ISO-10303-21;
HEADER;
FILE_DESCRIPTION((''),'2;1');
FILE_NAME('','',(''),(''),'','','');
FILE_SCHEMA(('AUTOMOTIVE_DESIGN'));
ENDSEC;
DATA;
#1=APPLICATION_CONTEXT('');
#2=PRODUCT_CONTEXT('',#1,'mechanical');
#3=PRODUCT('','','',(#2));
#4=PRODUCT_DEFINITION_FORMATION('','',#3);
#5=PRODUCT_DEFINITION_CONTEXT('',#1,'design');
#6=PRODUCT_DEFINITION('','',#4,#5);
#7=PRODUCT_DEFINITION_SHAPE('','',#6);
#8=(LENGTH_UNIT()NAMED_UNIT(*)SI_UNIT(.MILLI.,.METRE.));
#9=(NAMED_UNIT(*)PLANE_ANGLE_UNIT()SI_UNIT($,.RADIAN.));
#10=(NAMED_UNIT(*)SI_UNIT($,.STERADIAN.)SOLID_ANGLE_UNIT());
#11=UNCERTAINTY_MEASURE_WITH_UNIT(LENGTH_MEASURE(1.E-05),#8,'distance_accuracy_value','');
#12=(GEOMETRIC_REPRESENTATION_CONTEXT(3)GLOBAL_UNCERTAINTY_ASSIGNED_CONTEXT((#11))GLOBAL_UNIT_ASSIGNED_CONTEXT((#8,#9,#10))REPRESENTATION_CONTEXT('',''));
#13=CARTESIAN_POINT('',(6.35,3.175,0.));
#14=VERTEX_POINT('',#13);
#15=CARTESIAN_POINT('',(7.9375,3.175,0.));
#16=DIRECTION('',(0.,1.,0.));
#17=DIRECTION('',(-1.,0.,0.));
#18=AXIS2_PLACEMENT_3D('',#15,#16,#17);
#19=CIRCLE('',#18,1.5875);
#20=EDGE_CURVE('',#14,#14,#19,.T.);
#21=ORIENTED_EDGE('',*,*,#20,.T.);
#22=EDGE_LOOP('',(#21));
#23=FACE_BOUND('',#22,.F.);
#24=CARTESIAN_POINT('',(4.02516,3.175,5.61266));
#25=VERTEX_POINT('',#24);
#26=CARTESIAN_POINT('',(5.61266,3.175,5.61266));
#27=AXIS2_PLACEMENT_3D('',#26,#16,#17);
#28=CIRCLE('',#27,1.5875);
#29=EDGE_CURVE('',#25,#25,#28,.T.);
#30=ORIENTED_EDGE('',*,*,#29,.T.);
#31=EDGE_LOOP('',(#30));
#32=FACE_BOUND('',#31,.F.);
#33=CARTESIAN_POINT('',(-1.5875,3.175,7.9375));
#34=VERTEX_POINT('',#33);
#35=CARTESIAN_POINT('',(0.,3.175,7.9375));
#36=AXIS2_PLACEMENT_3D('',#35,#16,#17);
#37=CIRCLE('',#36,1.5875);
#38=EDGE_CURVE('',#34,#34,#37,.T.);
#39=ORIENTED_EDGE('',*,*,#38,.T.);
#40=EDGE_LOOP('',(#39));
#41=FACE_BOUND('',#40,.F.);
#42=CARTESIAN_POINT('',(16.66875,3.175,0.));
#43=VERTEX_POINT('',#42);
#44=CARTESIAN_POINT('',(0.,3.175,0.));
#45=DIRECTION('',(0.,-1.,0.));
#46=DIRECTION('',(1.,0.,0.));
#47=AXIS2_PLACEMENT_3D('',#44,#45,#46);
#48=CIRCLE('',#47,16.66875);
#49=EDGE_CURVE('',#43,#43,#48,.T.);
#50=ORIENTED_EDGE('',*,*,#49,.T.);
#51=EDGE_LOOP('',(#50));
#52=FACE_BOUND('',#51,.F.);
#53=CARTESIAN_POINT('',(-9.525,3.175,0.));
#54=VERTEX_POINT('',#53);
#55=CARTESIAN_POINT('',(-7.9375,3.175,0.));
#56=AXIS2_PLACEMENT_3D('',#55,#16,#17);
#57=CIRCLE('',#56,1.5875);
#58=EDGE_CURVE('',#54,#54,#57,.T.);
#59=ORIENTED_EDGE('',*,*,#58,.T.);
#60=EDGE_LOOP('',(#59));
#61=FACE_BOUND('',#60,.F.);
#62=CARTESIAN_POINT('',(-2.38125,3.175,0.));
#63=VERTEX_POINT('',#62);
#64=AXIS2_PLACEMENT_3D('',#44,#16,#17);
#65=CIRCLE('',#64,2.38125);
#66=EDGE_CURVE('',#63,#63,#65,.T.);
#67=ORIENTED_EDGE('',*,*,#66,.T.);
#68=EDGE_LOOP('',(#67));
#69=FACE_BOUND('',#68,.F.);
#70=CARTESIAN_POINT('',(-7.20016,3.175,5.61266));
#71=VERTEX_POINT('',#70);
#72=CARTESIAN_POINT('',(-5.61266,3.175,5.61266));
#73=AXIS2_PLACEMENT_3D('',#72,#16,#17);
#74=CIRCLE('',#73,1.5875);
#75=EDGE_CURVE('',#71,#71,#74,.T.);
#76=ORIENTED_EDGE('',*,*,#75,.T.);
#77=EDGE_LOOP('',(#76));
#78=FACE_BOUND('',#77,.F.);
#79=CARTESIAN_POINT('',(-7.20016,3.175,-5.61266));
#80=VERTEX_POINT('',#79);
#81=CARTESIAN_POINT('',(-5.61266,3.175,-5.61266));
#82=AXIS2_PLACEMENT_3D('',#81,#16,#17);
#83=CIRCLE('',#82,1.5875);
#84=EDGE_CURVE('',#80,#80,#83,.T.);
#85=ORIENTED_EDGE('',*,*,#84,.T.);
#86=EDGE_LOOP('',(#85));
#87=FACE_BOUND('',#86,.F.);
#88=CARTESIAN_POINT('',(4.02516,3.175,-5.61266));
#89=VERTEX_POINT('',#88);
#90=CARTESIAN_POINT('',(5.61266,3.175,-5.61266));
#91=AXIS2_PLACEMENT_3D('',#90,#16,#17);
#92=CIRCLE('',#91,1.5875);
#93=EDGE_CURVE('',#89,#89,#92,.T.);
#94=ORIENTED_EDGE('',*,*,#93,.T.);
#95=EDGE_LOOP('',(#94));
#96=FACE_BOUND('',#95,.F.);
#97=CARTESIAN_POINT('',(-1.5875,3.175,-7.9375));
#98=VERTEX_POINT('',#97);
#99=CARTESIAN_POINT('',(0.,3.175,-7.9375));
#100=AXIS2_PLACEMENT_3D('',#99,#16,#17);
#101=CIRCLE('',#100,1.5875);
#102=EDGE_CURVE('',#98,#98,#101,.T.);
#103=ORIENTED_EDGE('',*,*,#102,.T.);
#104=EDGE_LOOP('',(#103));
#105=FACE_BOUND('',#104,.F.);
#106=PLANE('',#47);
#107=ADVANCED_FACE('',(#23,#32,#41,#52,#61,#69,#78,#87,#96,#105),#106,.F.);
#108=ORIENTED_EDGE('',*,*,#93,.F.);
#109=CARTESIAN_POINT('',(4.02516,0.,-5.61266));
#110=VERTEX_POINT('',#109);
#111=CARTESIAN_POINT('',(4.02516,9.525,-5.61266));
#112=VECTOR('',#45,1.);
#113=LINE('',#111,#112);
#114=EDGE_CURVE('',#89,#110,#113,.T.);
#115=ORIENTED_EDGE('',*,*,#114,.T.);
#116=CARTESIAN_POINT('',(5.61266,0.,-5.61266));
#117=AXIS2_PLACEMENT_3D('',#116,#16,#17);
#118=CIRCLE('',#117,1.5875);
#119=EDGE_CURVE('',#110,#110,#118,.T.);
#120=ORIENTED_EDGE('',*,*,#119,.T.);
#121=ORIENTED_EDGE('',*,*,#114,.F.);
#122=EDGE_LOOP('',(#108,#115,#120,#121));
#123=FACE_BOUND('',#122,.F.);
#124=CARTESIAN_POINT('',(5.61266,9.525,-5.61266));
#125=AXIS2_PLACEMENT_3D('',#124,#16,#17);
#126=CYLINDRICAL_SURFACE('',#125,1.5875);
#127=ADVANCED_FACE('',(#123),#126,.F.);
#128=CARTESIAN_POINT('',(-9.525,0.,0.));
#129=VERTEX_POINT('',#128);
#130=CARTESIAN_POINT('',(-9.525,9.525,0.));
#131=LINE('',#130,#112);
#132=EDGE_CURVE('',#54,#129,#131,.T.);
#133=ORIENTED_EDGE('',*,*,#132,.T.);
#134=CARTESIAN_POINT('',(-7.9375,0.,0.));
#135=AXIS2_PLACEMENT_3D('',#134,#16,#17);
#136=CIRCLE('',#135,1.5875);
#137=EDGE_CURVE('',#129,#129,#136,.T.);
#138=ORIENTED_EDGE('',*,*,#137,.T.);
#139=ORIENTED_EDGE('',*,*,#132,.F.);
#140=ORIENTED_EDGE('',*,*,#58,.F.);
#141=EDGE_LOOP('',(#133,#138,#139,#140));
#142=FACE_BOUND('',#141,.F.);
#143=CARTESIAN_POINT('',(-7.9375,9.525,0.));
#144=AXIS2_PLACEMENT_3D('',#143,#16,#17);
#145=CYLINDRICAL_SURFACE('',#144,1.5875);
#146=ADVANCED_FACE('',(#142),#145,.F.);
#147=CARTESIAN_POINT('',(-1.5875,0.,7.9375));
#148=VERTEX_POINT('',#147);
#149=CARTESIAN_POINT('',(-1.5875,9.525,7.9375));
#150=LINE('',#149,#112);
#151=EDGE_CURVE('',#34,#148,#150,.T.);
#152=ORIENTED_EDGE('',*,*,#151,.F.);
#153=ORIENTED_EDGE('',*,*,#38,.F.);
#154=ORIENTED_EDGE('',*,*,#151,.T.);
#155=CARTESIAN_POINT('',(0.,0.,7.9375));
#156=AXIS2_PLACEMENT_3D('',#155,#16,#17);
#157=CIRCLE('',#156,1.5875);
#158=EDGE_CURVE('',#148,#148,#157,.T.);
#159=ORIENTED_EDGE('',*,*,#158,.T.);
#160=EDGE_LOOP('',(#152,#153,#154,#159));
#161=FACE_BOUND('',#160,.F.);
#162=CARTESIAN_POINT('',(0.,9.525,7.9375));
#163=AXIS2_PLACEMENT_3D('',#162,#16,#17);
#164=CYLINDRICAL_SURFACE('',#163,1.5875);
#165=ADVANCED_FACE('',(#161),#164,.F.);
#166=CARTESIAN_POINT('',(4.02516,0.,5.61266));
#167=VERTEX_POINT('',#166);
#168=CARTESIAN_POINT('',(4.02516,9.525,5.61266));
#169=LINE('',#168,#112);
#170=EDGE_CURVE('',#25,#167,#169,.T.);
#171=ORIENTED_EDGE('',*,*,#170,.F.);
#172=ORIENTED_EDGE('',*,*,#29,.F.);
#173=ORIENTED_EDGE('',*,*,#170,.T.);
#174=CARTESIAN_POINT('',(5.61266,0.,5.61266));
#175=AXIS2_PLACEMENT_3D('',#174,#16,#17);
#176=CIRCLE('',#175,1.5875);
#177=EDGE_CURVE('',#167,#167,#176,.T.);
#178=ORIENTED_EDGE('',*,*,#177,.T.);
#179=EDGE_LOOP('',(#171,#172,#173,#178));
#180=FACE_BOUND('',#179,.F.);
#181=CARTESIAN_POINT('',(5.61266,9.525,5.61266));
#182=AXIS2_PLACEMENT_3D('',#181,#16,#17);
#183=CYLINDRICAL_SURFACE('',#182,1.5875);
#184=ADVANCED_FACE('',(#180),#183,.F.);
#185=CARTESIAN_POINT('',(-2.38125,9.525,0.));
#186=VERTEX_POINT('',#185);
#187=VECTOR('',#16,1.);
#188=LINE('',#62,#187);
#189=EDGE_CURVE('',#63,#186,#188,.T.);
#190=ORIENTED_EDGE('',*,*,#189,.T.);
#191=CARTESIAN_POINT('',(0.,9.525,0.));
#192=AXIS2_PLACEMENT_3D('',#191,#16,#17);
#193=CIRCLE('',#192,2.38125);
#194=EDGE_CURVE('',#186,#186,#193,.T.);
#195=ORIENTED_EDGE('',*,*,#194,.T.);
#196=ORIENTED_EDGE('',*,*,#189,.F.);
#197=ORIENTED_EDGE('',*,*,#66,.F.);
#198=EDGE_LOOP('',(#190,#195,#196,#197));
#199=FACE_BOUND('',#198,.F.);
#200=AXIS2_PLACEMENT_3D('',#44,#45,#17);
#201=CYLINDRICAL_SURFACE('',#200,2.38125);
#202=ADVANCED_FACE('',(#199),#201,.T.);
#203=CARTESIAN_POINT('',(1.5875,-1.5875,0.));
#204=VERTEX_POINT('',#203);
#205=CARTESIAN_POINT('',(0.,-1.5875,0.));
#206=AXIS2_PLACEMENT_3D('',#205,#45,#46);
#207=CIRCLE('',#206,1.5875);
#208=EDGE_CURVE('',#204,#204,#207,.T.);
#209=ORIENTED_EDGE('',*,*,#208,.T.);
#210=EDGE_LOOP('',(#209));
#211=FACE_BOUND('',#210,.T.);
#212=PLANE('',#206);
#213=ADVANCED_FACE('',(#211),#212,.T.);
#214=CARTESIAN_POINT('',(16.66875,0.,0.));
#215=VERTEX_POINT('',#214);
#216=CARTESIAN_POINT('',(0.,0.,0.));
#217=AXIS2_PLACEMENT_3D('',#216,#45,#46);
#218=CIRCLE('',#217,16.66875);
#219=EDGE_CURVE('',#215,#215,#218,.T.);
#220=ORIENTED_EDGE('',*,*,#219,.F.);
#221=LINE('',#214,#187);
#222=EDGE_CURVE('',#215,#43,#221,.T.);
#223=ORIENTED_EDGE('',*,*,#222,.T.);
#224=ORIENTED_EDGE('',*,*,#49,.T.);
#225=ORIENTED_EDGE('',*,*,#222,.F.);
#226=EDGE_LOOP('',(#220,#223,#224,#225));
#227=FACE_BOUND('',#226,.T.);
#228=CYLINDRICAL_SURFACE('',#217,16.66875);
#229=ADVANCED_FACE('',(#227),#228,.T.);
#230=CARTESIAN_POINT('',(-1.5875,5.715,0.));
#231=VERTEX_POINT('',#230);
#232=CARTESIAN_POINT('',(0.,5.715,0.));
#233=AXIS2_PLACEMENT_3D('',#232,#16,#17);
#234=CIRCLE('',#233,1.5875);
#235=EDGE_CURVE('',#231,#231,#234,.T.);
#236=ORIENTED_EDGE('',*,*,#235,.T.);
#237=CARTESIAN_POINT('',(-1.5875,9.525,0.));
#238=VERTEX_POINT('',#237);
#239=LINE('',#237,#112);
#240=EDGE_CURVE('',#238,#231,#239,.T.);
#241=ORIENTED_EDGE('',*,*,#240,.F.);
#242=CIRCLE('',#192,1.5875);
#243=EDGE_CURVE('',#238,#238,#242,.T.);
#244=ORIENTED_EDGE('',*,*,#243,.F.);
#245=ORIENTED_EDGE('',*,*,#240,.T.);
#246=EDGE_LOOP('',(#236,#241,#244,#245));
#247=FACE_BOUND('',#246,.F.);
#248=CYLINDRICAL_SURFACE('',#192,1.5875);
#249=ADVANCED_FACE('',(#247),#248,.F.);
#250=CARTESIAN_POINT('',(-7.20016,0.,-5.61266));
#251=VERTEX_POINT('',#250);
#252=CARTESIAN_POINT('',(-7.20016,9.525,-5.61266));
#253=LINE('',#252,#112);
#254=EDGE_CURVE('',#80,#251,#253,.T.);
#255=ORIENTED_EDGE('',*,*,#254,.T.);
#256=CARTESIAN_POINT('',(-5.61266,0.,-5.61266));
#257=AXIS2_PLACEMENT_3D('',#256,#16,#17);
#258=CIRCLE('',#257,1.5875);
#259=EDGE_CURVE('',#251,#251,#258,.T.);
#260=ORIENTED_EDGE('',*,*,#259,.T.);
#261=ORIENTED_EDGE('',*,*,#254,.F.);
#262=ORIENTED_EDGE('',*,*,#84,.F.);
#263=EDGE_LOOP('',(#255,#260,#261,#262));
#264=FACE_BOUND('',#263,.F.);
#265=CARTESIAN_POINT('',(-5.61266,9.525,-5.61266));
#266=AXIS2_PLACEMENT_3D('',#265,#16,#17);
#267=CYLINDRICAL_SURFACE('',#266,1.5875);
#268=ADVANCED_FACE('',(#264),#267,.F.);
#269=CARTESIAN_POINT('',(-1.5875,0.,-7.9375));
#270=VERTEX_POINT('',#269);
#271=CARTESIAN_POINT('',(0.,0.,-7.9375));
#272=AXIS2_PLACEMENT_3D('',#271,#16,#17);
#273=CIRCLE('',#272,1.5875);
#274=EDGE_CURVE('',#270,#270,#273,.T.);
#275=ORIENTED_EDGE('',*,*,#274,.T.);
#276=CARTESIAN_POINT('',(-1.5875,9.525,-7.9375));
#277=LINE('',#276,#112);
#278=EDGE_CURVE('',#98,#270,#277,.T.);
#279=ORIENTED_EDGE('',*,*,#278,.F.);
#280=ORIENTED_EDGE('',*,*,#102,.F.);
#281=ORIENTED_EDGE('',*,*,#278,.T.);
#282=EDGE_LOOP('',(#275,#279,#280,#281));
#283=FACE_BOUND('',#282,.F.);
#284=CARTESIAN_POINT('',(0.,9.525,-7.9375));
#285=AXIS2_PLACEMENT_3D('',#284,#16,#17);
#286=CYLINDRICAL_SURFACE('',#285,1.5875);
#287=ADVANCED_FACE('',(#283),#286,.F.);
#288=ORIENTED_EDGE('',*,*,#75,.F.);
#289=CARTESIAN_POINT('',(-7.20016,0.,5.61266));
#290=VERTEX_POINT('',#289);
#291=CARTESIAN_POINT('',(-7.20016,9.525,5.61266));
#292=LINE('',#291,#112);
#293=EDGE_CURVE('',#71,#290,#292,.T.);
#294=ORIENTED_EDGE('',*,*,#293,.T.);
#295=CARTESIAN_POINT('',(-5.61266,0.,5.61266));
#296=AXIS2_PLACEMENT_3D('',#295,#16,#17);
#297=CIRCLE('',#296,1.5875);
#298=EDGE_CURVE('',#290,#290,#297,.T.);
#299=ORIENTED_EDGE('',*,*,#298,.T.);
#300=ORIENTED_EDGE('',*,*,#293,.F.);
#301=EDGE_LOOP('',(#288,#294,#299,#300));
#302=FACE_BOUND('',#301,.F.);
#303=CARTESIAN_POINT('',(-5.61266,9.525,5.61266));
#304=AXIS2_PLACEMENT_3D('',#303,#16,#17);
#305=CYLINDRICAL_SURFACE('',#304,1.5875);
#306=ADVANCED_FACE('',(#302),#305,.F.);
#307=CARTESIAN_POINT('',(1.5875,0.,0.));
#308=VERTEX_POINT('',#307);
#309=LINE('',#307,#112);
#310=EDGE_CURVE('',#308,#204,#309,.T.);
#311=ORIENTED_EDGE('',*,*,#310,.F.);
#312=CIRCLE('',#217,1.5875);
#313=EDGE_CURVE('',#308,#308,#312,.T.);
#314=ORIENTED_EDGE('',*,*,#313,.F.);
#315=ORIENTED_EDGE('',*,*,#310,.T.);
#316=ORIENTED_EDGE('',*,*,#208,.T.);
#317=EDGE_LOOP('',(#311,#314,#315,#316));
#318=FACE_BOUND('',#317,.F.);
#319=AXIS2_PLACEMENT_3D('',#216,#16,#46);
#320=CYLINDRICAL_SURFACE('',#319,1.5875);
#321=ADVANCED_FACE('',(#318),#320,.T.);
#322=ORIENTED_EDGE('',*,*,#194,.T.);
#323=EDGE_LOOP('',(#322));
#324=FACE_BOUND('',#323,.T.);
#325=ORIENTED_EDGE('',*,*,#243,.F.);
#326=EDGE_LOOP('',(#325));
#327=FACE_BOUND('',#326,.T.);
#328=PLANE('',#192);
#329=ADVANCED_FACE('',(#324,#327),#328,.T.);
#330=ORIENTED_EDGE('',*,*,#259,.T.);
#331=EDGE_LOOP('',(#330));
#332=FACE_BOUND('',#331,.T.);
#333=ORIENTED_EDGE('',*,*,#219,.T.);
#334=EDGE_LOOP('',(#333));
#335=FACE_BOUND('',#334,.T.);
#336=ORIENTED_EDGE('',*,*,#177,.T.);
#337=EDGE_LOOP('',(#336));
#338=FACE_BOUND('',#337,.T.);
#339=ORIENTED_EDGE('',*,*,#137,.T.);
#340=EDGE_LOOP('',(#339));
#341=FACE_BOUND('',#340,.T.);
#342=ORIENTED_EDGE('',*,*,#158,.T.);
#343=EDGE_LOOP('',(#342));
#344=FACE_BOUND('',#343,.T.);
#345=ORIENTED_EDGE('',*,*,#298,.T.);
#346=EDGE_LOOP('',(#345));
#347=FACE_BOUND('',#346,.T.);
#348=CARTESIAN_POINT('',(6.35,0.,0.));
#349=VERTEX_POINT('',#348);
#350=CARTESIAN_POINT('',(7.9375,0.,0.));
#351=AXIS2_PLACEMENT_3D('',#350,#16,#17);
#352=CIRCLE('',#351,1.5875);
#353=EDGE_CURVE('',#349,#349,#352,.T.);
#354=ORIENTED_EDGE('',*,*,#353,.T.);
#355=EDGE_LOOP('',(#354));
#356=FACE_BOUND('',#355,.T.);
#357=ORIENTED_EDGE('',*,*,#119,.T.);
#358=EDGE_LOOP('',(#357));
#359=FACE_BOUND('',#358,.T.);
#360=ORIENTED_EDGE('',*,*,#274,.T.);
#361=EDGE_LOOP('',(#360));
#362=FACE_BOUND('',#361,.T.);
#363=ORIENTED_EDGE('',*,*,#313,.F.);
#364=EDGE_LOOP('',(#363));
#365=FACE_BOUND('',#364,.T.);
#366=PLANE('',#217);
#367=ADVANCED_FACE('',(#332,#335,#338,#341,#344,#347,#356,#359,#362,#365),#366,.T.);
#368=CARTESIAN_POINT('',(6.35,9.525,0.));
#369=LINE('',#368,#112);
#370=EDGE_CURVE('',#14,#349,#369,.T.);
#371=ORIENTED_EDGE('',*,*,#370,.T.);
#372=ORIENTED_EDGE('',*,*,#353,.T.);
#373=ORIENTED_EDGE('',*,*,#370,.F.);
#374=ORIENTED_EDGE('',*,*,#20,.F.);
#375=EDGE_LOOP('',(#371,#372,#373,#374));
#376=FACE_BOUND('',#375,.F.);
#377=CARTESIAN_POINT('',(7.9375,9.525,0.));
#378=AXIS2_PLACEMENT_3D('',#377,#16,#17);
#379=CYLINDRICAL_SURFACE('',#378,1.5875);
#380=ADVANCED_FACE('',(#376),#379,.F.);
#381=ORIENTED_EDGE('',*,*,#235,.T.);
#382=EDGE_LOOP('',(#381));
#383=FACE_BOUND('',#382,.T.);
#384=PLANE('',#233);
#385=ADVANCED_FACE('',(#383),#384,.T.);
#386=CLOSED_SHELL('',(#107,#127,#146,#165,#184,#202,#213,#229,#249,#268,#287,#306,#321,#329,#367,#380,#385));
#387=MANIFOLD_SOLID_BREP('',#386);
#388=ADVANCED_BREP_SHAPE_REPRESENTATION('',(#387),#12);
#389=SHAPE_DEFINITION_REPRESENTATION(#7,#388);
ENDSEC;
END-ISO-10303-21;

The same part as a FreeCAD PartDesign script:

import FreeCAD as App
import Part
import Sketcher

V = App.Vector
Q = App.Units.Quantity

doc = App.newDocument("Part")
body = doc.addObject("PartDesign::Body", "Body")

# Sketch on XZ plane
sketch1 = body.newObject("Sketcher::SketchObject", "Sketch")
sketch1.AttachmentSupport = (doc.getObject("XZ_Plane"), [""])
sketch1.MapMode = "FlatFace"
sketch1.addGeometry(Part.Circle(V(0, 0, 0), V(0, 0, 1), 17), False)
sketch1.addConstraint(Sketcher.Constraint("Coincident", 0, 3, -1, 1))
sketch1.addConstraint(Sketcher.Constraint("Diameter", 0, Q("1.3125 in")))
pad1 = body.newObject("PartDesign::Pad", "Pad")
pad1.Profile = sketch1
pad1.Length = Q("0.125 in")
pad1.Reversed = True

# Sketch on XZ plane
sketch2 = body.newObject("Sketcher::SketchObject", "Sketch001")
sketch2.AttachmentSupport = (doc.getObject("XZ_Plane"), [""])
sketch2.MapMode = "FlatFace"
sketch2.AttachmentOffset = App.Placement(V(0, 0, -0.125 * 25.4), App.Rotation())
sketch2.addGeometry(Part.Circle(V(0, 0, 0), V(0, 0, 1), 2.4), False)
sketch2.addConstraint(Sketcher.Constraint("Coincident", 0, 3, -1, 1))
sketch2.addConstraint(Sketcher.Constraint("Diameter", 0, Q("0.1875 in")))
pad2 = body.newObject("PartDesign::Pad", "Pad001")
pad2.Profile = sketch2
pad2.Length = Q("0.25 in")
pad2.Reversed = True

# Sketch on XZ plane
sketch3 = body.newObject("Sketcher::SketchObject", "Sketch002")
sketch3.AttachmentSupport = (doc.getObject("XZ_Plane"), [""])
sketch3.MapMode = "FlatFace"
sketch3.AttachmentOffset = App.Placement(V(0, 0, -0.375 * 25.4), App.Rotation())
sketch3.addGeometry(Part.Circle(V(-7.9, 0, 0), V(0, 0, 1), 1.6), False)
sketch3.addGeometry(Part.Circle(V(-5.6, 5.6, 0), V(0, 0, 1), 1.6), False)
sketch3.addGeometry(Part.Circle(V(0, 7.9, 0), V(0, 0, 1), 1.6), False)
sketch3.addGeometry(Part.Circle(V(5.6, 5.6, 0), V(0, 0, 1), 1.6), False)
sketch3.addGeometry(Part.Circle(V(7.9, 0, 0), V(0, 0, 1), 1.6), False)
sketch3.addGeometry(Part.Circle(V(5.6, -5.6, 0), V(0, 0, 1), 1.6), False)
sketch3.addGeometry(Part.Circle(V(0, -7.9, 0), V(0, 0, 1), 1.6), False)
sketch3.addGeometry(Part.Circle(V(-5.6, -5.6, 0), V(0, 0, 1), 1.6), False)
sketch3.addConstraint(Sketcher.Constraint("Equal", 0, 1))
sketch3.addConstraint(Sketcher.Constraint("Equal", 1, 2))
sketch3.addConstraint(Sketcher.Constraint("Equal", 2, 3))
sketch3.addConstraint(Sketcher.Constraint("Equal", 3, 4))
sketch3.addConstraint(Sketcher.Constraint("Equal", 4, 5))
sketch3.addConstraint(Sketcher.Constraint("Equal", 5, 6))
sketch3.addConstraint(Sketcher.Constraint("Equal", 6, 7))
sketch3.addConstraint(Sketcher.Constraint("Symmetric", 0, 3, 4, 3, -1, 1))
sketch3.addConstraint(Sketcher.Constraint("Symmetric", 1, 3, 5, 3, -1, 1))
sketch3.addConstraint(Sketcher.Constraint("Symmetric", 2, 3, 6, 3, -1, 1))
sketch3.addConstraint(Sketcher.Constraint("Symmetric", 3, 3, 7, 3, -1, 1))
sketch3.addConstraint(Sketcher.Constraint("Symmetric", 1, 3, 3, 3, -2))
sketch3.addConstraint(Sketcher.Constraint("PointOnObject", 0, 3, -1))
sketch3.addConstraint(Sketcher.Constraint("PointOnObject", 2, 3, -2))
sketch3.addConstraint(Sketcher.Constraint("Diameter", 0, Q("0.125 in")))
sketch3.addConstraint(Sketcher.Constraint("DistanceX", 0, 3, -1, 1, Q("0.3125 in")))
sketch3.addConstraint(Sketcher.Constraint("DistanceY", -1, 1, 2, 3, Q("0.3125 in")))
sketch3.addConstraint(Sketcher.Constraint("DistanceX", 1, 3, -1, 1, 5.61266))
sketch3.addConstraint(Sketcher.Constraint("DistanceY", -1, 1, 1, 3, 5.61266))
pocket1 = body.newObject("PartDesign::Pocket", "Pocket")
pocket1.Profile = sketch3
pocket1.Length = Q("1 in")
pocket1.Reversed = True

# Sketch on XZ plane
sketch4 = body.newObject("Sketcher::SketchObject", "Sketch003")
sketch4.AttachmentSupport = (doc.getObject("XZ_Plane"), [""])
sketch4.MapMode = "FlatFace"
sketch4.addGeometry(Part.Circle(V(0, 0, 0), V(0, 0, 1), 1.6), False)
sketch4.addConstraint(Sketcher.Constraint("Coincident", 0, 3, -1, 1))
sketch4.addConstraint(Sketcher.Constraint("Diameter", 0, Q("0.125 in")))
pad3 = body.newObject("PartDesign::Pad", "Pad002")
pad3.Profile = sketch4
pad3.Length = Q("0.0625 in")

# Sketch on XZ plane
sketch5 = body.newObject("Sketcher::SketchObject", "Sketch004")
sketch5.AttachmentSupport = (doc.getObject("XZ_Plane"), [""])
sketch5.MapMode = "FlatFace"
sketch5.AttachmentOffset = App.Placement(V(0, 0, -0.375 * 25.4), App.Rotation())
sketch5.addGeometry(Part.Circle(V(0, 0, 0), V(0, 0, 1), 1.6), False)
sketch5.addConstraint(Sketcher.Constraint("Coincident", 0, 3, -1, 1))
sketch5.addConstraint(Sketcher.Constraint("Diameter", 0, Q("0.125 in")))
pocket2 = body.newObject("PartDesign::Pocket", "Pocket001")
pocket2.Profile = sketch5
pocket2.Length = Q("0.15 in")
pocket2.Reversed = True

doc.recompute()
